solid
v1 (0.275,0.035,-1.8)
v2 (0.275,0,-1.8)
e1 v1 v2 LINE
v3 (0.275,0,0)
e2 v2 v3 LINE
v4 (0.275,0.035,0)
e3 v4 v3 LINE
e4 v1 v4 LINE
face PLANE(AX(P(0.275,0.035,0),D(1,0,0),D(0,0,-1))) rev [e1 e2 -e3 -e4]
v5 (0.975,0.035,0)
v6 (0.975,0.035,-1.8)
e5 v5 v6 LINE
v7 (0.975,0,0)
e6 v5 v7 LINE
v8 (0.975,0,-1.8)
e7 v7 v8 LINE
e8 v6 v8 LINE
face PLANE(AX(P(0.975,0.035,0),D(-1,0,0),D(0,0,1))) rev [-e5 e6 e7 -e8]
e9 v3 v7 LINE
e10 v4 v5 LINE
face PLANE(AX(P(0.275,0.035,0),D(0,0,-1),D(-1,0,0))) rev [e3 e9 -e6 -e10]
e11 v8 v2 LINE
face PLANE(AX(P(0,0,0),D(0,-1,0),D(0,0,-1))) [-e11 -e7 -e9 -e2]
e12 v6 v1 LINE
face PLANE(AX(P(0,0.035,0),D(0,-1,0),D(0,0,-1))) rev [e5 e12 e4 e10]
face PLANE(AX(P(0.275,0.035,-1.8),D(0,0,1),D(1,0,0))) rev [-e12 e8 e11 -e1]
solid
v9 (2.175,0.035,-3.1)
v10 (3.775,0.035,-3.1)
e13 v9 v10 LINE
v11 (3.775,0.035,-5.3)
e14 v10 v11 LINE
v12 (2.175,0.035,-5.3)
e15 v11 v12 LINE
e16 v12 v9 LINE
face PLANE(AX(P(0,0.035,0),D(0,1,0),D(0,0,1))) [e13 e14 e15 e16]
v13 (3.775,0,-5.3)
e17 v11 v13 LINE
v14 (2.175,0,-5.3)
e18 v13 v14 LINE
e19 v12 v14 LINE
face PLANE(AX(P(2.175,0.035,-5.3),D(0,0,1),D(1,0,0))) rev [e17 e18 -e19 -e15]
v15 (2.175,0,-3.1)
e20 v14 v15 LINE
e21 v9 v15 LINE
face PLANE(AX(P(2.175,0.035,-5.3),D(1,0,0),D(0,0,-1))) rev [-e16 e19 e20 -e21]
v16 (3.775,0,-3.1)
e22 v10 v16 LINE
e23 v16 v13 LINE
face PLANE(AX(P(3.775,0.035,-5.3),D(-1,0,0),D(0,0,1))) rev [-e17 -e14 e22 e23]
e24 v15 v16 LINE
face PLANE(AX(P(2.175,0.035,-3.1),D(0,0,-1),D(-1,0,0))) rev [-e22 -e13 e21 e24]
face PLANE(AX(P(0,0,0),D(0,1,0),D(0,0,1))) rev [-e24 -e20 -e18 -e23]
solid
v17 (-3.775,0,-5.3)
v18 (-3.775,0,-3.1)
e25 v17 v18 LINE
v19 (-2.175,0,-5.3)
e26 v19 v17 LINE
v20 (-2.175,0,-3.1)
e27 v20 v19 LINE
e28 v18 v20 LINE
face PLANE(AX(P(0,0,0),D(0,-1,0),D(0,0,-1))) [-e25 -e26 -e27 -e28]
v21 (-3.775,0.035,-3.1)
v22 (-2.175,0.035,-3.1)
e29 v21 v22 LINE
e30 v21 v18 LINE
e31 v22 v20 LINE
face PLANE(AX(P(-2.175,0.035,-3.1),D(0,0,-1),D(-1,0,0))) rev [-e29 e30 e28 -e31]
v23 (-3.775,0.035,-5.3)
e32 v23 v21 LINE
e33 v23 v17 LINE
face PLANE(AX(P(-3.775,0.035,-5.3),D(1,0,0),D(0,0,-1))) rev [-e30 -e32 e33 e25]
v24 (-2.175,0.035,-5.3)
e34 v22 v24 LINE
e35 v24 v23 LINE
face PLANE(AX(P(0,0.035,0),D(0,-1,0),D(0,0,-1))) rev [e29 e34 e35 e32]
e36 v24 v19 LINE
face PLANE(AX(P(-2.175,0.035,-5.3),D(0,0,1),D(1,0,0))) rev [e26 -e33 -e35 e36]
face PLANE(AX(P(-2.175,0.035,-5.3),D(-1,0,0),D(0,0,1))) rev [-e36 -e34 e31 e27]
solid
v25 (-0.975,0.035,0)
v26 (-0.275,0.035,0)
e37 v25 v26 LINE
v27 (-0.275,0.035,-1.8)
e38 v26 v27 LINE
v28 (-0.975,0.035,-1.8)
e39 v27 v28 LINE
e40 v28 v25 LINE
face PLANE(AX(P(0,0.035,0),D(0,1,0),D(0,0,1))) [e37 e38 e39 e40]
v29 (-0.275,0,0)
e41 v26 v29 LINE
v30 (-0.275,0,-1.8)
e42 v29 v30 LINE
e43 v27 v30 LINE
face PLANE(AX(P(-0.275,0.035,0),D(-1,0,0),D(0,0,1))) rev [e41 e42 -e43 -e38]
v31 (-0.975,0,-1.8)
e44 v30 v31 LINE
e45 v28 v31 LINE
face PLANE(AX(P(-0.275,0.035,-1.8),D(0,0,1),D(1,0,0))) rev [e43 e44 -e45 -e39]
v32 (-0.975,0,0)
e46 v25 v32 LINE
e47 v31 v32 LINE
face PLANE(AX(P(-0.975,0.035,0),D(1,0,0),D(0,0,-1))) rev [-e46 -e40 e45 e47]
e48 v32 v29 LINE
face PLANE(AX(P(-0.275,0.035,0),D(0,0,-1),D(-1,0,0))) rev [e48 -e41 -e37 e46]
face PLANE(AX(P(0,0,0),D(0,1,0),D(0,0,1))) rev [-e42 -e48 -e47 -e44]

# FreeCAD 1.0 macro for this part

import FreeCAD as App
import Part
import Sketcher


def add_polygon(sketch, points):
    """Adds a closed chain of lines whose ends are joined by coincident constraints."""
    first, n = sketch.GeometryCount, len(points)
    for a, b in zip(points, points[1:] + points[:1]):
        sketch.addGeometry(Part.LineSegment(App.Vector(*a, 0), App.Vector(*b, 0)), False)
    for i in range(n):
        sketch.addConstraint(Sketcher.Constraint("Coincident", first + i, 2, first + (i + 1) % n, 1))

doc = App.newDocument("Part")
params = doc.addObject("Spreadsheet::Sheet", "Params")
for row, (alias, value) in enumerate([
    ("sketch1_width", "0.7 mm"),
    ("sketch1_height", "1.8 mm"),
    ("pad1_length", "0.035 mm"),
    ("sketch2_width", "0.7 mm"),
    ("sketch2_height", "1.8 mm"),
    ("pad2_length", "0.035 mm"),
    ("sketch3_width", "1.6 mm"),
    ("sketch3_height", "2.2 mm"),
    ("pad3_length", "0.035 mm"),
    ("sketch4_width", "1.6 mm"),
    ("sketch4_height", "2.2 mm"),
    ("pad4_length", "0.035 mm"),
], start=1):
    params.set(f"A{row}", alias)
    params.set(f"B{row}", "=" + value)
    params.setAlias(f"B{row}", alias)

body = doc.addObject("PartDesign::Body", "Body")

# Sketch on XZ plane
sketch1 = doc.addObject("Sketcher::SketchObject", "Sketch")
body.addObject(sketch1)
sketch1.AttachmentSupport = (doc.XZ_Plane, [""])
sketch1.MapMode = "FlatFace"
add_polygon(sketch1, [(-1, -1.8), (-1, 0), (-0.3, 0), (-0.3, -1.8)])  # lines 0-3
sketch1.addConstraint([
    Sketcher.Constraint("Vertical", 0),
    Sketcher.Constraint("Horizontal", 1),
    Sketcher.Constraint("Vertical", 2),
    Sketcher.Constraint("Horizontal", 3),
    Sketcher.Constraint("PointOnObject", 0, 2, -1),
    Sketcher.Constraint("DistanceX", 1, 1, 1, 2, 0.7),
    Sketcher.Constraint("DistanceY", 0, 1, 0, 2, 1.8),
    Sketcher.Constraint("DistanceX", 0, 2, -1, 1, 0.975),
])
sketch1.setExpression("Constraints[9]", "Params.sketch1_width")
sketch1.setExpression("Constraints[10]", "Params.sketch1_height")
pad1 = doc.addObject("PartDesign::Pad", "Pad")
body.addObject(pad1)
pad1.Profile = sketch1
pad1.setExpression("Length", "Params.pad1_length")
pad1.Reversed = True
body2 = doc.addObject("PartDesign::Body", "Body001")

# Sketch on XZ plane
sketch2 = doc.addObject("Sketcher::SketchObject", "Sketch001")
body2.addObject(sketch2)
sketch2.AttachmentSupport = (doc.getObject("XZ_Plane001"), [""])
sketch2.MapMode = "FlatFace"
add_polygon(sketch2, [(0.3, -1.8), (0.3, 0), (1, 0), (1, -1.8)])  # lines 0-3
sketch2.addConstraint([
    Sketcher.Constraint("Vertical", 0),
    Sketcher.Constraint("Horizontal", 1),
    Sketcher.Constraint("Vertical", 2),
    Sketcher.Constraint("Horizontal", 3),
    Sketcher.Constraint("PointOnObject", 0, 2, -1),
    Sketcher.Constraint("DistanceX", 1, 1, 1, 2, 0.7),
    Sketcher.Constraint("DistanceY", 0, 1, 0, 2, 1.8),
    Sketcher.Constraint("DistanceX", -1, 1, 0, 2, 0.275),
])
sketch2.setExpression("Constraints[9]", "Params.sketch2_width")
sketch2.setExpression("Constraints[10]", "Params.sketch2_height")
pad2 = doc.addObject("PartDesign::Pad", "Pad001")
body2.addObject(pad2)
pad2.Profile = sketch2
pad2.setExpression("Length", "Params.pad2_length")
pad2.Reversed = True
body3 = doc.addObject("PartDesign::Body", "Body002")

# Sketch on XZ plane
sketch3 = doc.addObject("Sketcher::SketchObject", "Sketch002")
body3.addObject(sketch3)
sketch3.AttachmentSupport = (doc.getObject("XZ_Plane002"), [""])
sketch3.MapMode = "FlatFace"
add_polygon(sketch3, [(2.2, -5.3), (2.2, -3.1), (3.8, -3.1), (3.8, -5.3)])  # lines 0-3
sketch3.addConstraint([
    Sketcher.Constraint("Vertical", 0),
    Sketcher.Constraint("Horizontal", 1),
    Sketcher.Constraint("Vertical", 2),
    Sketcher.Constraint("Horizontal", 3),
    Sketcher.Constraint("DistanceX", 1, 1, 1, 2, 1.6),
    Sketcher.Constraint("DistanceY", 0, 1, 0, 2, 2.2),
    Sketcher.Constraint("DistanceY", 0, 2, -1, 1, 3.1),
    Sketcher.Constraint("DistanceX", -1, 1, 0, 2, 2.175),
])
sketch3.setExpression("Constraints[8]", "Params.sketch3_width")
sketch3.setExpression("Constraints[9]", "Params.sketch3_height")
pad3 = doc.addObject("PartDesign::Pad", "Pad002")
body3.addObject(pad3)
pad3.Profile = sketch3
pad3.setExpression("Length", "Params.pad3_length")
pad3.Reversed = True
body4 = doc.addObject("PartDesign::Body", "Body003")

# Sketch on XZ plane
sketch4 = doc.addObject("Sketcher::SketchObject", "Sketch003")
body4.addObject(sketch4)
sketch4.AttachmentSupport = (doc.getObject("XZ_Plane003"), [""])
sketch4.MapMode = "FlatFace"
add_polygon(sketch4, [(-3.8, -5.3), (-3.8, -3.1), (-2.2, -3.1), (-2.2, -5.3)])  # lines 0-3
sketch4.addConstraint([
    Sketcher.Constraint("Vertical", 0),
    Sketcher.Constraint("Horizontal", 1),
    Sketcher.Constraint("Vertical", 2),
    Sketcher.Constraint("Horizontal", 3),
    Sketcher.Constraint("DistanceX", 1, 1, 1, 2, 1.6),
    Sketcher.Constraint("DistanceY", 0, 1, 0, 2, 2.2),
    Sketcher.Constraint("DistanceY", 0, 2, -1, 1, 3.1),
    Sketcher.Constraint("DistanceX", 0, 2, -1, 1, 3.775),
])
sketch4.setExpression("Constraints[8]", "Params.sketch4_width")
sketch4.setExpression("Constraints[9]", "Params.sketch4_height")
pad4 = doc.addObject("PartDesign::Pad", "Pad003")
body4.addObject(pad4)
pad4.Profile = sketch4
pad4.setExpression("Length", "Params.pad4_length")
pad4.Reversed = True

doc.recompute()
